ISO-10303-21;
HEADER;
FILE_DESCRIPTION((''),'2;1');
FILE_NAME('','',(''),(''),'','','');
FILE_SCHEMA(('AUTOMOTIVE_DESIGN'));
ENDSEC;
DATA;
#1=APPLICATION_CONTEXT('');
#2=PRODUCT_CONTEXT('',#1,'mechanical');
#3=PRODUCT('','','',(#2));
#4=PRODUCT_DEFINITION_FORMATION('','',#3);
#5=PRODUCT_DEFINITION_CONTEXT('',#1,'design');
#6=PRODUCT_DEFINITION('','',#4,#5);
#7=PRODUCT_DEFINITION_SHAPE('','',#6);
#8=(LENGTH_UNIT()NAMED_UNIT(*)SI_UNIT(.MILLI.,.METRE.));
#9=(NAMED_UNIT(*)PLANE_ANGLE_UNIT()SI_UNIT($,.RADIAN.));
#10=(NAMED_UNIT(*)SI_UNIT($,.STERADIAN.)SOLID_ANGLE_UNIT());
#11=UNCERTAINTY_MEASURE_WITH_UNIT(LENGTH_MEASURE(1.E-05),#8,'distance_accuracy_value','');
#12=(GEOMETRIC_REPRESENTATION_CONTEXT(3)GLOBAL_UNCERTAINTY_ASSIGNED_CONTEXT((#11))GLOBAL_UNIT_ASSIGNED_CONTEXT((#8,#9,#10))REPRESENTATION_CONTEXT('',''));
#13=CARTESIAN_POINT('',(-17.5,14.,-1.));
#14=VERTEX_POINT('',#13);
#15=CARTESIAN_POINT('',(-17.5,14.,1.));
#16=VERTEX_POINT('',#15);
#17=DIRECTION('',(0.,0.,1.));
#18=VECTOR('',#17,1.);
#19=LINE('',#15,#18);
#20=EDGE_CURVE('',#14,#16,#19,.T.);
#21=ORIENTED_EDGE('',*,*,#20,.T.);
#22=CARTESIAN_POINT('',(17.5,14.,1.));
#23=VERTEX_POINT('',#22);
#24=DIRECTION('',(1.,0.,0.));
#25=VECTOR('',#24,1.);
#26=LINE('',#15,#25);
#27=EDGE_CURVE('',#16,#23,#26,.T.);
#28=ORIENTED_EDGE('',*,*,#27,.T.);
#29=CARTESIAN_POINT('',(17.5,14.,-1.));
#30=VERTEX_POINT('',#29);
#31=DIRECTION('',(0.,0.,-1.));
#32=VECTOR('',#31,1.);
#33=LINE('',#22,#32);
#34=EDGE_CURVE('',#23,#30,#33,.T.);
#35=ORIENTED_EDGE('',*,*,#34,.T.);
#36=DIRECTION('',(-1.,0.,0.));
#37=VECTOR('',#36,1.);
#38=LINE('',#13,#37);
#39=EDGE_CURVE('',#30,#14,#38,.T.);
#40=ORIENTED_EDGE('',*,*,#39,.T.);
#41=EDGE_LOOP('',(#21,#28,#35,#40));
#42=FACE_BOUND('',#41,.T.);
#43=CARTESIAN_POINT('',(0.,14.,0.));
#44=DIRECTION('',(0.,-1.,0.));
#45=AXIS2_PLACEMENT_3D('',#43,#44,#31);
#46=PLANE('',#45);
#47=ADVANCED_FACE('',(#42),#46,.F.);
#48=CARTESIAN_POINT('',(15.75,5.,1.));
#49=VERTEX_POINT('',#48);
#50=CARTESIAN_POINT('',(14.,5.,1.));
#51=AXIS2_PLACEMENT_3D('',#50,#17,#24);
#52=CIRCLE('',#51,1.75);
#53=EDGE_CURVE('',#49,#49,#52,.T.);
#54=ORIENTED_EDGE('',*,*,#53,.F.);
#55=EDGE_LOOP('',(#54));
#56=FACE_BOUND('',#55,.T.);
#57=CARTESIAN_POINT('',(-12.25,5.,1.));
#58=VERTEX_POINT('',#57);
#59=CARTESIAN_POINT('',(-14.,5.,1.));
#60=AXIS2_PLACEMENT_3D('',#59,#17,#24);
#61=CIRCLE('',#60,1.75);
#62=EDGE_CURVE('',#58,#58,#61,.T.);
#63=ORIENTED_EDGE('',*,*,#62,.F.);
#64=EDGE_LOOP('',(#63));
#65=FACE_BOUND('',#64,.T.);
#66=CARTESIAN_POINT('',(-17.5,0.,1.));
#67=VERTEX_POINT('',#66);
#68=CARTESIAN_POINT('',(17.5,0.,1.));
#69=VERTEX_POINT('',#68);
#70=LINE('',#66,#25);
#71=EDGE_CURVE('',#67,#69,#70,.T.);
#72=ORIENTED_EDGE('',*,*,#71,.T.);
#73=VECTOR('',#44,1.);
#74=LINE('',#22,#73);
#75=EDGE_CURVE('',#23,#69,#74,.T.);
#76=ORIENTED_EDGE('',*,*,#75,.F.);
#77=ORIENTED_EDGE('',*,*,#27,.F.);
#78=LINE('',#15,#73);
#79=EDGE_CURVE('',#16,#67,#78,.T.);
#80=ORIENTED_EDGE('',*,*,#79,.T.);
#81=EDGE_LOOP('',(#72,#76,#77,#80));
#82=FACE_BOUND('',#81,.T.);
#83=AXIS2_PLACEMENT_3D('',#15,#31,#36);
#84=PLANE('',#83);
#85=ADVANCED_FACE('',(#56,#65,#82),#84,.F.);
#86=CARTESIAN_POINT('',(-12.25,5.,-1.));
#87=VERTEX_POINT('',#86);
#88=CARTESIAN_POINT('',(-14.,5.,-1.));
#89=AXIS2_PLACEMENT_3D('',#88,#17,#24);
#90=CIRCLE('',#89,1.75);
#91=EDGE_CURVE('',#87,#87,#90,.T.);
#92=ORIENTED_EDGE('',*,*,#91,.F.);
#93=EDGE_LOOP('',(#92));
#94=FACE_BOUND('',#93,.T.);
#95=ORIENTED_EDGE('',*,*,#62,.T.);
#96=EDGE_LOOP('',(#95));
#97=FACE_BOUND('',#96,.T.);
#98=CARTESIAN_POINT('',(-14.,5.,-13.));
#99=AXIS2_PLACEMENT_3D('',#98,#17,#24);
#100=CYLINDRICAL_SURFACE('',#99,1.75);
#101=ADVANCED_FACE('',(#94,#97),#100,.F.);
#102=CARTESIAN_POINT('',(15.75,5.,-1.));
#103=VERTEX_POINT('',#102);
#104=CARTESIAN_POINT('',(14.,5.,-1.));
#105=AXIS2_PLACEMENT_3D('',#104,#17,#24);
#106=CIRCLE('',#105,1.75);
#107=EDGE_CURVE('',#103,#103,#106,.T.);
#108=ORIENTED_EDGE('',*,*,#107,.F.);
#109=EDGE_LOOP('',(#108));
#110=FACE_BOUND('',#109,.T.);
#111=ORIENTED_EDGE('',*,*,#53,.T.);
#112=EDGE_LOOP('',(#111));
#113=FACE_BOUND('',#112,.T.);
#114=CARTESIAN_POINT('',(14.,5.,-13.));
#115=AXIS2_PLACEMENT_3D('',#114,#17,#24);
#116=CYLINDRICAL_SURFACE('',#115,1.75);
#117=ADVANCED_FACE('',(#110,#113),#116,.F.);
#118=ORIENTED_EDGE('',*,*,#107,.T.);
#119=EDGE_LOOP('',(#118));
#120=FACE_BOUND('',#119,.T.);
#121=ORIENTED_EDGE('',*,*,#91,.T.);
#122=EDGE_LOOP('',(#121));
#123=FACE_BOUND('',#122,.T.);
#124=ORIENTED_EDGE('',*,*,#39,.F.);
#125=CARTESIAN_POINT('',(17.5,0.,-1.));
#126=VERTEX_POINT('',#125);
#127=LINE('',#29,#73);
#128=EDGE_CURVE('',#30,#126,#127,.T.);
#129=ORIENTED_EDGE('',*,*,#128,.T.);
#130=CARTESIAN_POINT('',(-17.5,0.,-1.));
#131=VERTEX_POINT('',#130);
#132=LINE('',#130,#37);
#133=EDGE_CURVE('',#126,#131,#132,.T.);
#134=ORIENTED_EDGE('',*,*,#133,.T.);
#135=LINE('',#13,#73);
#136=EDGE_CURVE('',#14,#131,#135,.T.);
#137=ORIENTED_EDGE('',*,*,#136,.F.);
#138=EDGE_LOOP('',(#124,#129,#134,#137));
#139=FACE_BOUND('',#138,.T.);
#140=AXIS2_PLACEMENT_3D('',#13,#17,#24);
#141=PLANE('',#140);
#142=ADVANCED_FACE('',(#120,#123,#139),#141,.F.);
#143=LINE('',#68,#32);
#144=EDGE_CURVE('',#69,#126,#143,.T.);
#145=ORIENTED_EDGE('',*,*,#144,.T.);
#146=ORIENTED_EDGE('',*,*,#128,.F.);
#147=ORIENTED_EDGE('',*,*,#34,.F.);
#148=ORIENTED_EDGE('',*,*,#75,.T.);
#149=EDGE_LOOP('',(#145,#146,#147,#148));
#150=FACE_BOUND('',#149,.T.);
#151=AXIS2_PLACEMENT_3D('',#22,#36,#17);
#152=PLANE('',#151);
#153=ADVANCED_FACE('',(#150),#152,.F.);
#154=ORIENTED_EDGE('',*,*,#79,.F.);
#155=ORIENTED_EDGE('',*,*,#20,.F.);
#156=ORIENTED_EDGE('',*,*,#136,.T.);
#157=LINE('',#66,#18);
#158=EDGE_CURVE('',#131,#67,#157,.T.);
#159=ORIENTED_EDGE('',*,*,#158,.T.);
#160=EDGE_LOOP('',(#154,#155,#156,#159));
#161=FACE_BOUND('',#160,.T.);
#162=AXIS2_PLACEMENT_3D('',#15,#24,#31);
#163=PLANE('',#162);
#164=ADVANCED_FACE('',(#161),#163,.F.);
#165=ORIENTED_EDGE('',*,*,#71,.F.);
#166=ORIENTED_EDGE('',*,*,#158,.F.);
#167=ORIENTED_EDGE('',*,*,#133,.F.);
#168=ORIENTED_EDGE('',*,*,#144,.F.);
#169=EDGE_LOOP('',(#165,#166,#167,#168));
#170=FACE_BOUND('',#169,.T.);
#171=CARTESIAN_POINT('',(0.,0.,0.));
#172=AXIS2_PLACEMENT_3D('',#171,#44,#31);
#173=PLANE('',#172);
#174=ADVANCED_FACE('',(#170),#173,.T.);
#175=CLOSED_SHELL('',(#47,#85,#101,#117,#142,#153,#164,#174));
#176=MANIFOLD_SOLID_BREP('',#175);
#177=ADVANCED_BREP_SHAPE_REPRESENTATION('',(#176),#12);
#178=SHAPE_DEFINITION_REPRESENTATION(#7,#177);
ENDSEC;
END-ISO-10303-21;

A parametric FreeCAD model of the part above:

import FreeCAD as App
import Part
import Sketcher

doc = App.newDocument("Part")
body = doc.addObject("PartDesign::Body", "Body")

sketch1 = doc.addObject("Sketcher::SketchObject", "Sketch")
body.addObject(sketch1)
sketch1.AttachmentSupport = (doc.XZ_Plane, [""])
sketch1.MapMode = "FlatFace"
sketch1.addGeometry([
    Part.LineSegment(App.Vector(-17.5, -1, 0), App.Vector(-17.5, 1, 0)),
    Part.LineSegment(App.Vector(-17.5, 1, 0), App.Vector(17.5, 1, 0)),
    Part.LineSegment(App.Vector(17.5, 1, 0), App.Vector(17.5, -1, 0)),
    Part.LineSegment(App.Vector(17.5, -1, 0), App.Vector(-17.5, -1, 0)),
], False)
sketch1.addConstraint([
    Sketcher.Constraint("Coincident", 0, 2, 1, 1),
    Sketcher.Constraint("Coincident", 1, 2, 2, 1),
    Sketcher.Constraint("Coincident", 2, 2, 3, 1),
    Sketcher.Constraint("Coincident", 3, 2, 0, 1),
    Sketcher.Constraint("Vertical", 0),
    Sketcher.Constraint("Horizontal", 1),
    Sketcher.Constraint("Vertical", 2),
    Sketcher.Constraint("Horizontal", 3),
    Sketcher.Constraint("Symmetric", 0, 2, 2, 2, -1, 1),
    Sketcher.Constraint("DistanceX", 1, 1, 1, 2, 35.0),
    Sketcher.Constraint("DistanceY", 0, 1, 0, 2, 2.0),
])
pad1 = doc.addObject("PartDesign::Pad", "Pad")
body.addObject(pad1)
pad1.Profile = sketch1
pad1.Length = 14
pad1.Reversed = True

sketch2 = doc.addObject("Sketcher::SketchObject", "Sketch001")
body.addObject(sketch2)
sketch2.AttachmentSupport = (doc.XY_Plane, [""])
sketch2.MapMode = "FlatFace"
sketch2.AttachmentOffset = App.Placement(App.Vector(0, 0, 1), App.Rotation())
sketch2.addGeometry([
    Part.Circle(App.Vector(-14, 5, 0), App.Vector(0, 0, 1), 1.75),
    Part.Circle(App.Vector(14, 5, 0), App.Vector(0, 0, 1), 1.75),
], False)
sketch2.addConstraint([
    Sketcher.Constraint("Equal", 0, 1),
    Sketcher.Constraint("Symmetric", 0, 3, 1, 3, -2),
    Sketcher.Constraint("Diameter", 0, 3.5),
    Sketcher.Constraint("DistanceX", 0, 3, -1, 1, 14.0),
    Sketcher.Constraint("DistanceY", -1, 1, 0, 3, 5.0),
])
pocket1 = doc.addObject("PartDesign::Pocket", "Pocket")
body.addObject(pocket1)
pocket1.Profile = sketch2
pocket1.Length = 14

doc.recompute()
